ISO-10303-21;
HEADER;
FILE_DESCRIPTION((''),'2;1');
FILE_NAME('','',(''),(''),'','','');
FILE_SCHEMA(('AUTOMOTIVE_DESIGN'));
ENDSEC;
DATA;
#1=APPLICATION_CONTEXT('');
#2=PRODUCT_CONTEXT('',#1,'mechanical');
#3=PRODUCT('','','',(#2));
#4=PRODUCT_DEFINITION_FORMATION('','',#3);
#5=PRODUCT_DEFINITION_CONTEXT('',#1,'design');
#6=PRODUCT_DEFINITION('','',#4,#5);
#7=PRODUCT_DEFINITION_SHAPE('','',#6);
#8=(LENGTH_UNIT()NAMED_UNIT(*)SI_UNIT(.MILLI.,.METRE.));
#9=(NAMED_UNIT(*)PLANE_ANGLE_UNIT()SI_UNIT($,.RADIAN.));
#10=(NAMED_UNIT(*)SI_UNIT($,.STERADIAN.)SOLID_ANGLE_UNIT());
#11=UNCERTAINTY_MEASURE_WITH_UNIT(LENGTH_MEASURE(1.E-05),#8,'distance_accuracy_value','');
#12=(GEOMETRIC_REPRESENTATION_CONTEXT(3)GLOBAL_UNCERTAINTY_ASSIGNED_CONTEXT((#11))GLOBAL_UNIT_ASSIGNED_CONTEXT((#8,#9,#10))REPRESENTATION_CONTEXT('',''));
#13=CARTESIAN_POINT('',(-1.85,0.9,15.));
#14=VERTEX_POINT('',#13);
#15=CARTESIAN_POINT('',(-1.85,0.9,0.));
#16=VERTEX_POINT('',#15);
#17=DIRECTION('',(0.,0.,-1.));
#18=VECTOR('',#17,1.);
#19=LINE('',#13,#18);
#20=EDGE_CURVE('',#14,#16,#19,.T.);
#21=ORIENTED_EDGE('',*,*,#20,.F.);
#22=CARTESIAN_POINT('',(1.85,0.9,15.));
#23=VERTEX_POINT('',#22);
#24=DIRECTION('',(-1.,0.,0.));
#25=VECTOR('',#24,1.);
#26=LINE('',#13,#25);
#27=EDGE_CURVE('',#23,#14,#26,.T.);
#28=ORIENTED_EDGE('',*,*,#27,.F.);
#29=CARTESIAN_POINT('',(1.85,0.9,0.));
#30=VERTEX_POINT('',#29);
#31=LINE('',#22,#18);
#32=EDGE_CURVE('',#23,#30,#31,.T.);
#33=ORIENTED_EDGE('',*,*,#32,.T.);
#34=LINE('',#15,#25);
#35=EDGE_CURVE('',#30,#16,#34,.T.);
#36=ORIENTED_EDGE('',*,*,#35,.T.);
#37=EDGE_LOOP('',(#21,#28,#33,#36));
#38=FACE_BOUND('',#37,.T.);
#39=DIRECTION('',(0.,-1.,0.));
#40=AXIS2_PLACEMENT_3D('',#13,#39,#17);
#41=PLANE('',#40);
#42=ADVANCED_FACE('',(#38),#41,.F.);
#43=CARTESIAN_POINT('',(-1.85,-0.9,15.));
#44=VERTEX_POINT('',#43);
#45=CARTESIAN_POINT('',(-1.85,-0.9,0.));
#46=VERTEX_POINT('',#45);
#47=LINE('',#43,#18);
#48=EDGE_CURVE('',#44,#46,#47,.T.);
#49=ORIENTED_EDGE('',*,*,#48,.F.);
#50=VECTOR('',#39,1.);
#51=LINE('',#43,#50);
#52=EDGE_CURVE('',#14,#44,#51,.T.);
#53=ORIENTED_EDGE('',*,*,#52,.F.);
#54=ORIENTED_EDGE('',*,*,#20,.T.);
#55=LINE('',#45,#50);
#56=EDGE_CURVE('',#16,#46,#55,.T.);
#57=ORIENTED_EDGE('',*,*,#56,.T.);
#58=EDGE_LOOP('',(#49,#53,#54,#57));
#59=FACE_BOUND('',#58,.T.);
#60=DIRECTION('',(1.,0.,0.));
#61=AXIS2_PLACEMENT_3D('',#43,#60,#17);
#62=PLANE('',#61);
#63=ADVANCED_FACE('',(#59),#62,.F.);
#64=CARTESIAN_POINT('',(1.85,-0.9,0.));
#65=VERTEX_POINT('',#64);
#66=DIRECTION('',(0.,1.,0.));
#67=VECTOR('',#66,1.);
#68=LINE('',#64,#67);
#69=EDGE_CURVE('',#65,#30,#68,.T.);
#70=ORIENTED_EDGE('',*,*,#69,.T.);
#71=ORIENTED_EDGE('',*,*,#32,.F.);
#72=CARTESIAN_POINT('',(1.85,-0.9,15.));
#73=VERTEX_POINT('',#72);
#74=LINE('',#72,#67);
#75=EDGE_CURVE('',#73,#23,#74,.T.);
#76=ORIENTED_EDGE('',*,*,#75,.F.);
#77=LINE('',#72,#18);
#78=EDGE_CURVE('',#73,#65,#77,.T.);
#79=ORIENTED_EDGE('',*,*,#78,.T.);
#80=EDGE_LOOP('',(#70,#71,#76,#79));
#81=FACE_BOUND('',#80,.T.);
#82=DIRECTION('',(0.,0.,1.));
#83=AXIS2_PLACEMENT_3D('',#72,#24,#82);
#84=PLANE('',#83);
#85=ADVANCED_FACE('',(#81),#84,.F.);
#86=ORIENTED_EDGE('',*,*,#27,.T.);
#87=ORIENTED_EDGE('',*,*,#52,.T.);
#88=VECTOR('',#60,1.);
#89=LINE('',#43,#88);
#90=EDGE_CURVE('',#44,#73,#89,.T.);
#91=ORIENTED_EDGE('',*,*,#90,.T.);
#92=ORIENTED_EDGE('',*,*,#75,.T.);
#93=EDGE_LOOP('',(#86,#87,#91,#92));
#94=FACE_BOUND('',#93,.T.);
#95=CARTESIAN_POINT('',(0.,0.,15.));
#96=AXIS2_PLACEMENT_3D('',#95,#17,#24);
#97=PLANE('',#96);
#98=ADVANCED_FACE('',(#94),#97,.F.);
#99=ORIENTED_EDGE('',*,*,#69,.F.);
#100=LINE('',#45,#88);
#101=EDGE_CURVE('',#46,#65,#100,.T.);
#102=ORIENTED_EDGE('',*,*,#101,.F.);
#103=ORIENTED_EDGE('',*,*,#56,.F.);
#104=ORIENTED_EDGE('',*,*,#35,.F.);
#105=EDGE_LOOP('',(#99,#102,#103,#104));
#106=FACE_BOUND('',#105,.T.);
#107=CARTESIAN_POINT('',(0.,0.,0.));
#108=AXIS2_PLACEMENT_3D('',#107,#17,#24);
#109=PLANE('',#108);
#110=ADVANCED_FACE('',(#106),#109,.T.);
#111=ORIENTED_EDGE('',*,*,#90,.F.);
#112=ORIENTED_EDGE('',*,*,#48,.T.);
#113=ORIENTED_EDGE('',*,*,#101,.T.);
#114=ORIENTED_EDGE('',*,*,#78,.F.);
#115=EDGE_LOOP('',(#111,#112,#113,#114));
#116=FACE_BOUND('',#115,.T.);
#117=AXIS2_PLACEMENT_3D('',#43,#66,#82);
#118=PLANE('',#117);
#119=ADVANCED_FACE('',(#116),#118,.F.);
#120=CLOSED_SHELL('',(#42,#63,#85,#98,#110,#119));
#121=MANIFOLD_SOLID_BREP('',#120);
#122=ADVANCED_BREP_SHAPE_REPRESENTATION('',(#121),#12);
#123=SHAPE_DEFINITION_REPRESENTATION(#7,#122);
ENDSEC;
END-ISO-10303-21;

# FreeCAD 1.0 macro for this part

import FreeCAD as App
import Part
import Sketcher
from FreeCAD import Vector


def add_polygon(sketch, points):
    """Adds a closed chain of lines whose ends are joined by coincident constraints."""
    first, n = sketch.GeometryCount, len(points)
    for a, b in zip(points, points[1:] + points[:1]):
        sketch.addGeometry(Part.LineSegment(App.Vector(*a, 0), App.Vector(*b, 0)), False)
    for i in range(n):
        sketch.addConstraint(Sketcher.Constraint("Coincident", first + i, 2, first + (i + 1) % n, 1))

doc = App.newDocument("Part")
body = doc.addObject("PartDesign::Body", "Body")

# Sketch on XY plane
sketch1 = doc.addObject("Sketcher::SketchObject", "Sketch")
body.addObject(sketch1)
sketch1.AttachmentSupport = (doc.XY_Plane, [""])
sketch1.MapMode = "FlatFace"
add_polygon(sketch1, [(-1.9, 0.9), (-1.9, -0.9), (1.9, -0.9), (1.9, 0.9)])  # lines 0-3
sketch1.addConstraint(Sketcher.Constraint("Vertical", 0))
sketch1.addConstraint(Sketcher.Constraint("Horizontal", 1))
sketch1.addConstraint(Sketcher.Constraint("Vertical", 2))
sketch1.addConstraint(Sketcher.Constraint("Horizontal", 3))
sketch1.addConstraint(Sketcher.Constraint("Symmetric", 0, 2, 2, 2, -1, 1))
sketch1.addConstraint(Sketcher.Constraint("DistanceX", 1, 1, 1, 2, 3.7))
sketch1.addConstraint(Sketcher.Constraint("DistanceY", 0, 2, 0, 1, 1.8))
pad1 = doc.addObject("PartDesign::Pad", "Pad")
body.addObject(pad1)
pad1.Profile = sketch1
pad1.Length = 15

doc.recompute()
